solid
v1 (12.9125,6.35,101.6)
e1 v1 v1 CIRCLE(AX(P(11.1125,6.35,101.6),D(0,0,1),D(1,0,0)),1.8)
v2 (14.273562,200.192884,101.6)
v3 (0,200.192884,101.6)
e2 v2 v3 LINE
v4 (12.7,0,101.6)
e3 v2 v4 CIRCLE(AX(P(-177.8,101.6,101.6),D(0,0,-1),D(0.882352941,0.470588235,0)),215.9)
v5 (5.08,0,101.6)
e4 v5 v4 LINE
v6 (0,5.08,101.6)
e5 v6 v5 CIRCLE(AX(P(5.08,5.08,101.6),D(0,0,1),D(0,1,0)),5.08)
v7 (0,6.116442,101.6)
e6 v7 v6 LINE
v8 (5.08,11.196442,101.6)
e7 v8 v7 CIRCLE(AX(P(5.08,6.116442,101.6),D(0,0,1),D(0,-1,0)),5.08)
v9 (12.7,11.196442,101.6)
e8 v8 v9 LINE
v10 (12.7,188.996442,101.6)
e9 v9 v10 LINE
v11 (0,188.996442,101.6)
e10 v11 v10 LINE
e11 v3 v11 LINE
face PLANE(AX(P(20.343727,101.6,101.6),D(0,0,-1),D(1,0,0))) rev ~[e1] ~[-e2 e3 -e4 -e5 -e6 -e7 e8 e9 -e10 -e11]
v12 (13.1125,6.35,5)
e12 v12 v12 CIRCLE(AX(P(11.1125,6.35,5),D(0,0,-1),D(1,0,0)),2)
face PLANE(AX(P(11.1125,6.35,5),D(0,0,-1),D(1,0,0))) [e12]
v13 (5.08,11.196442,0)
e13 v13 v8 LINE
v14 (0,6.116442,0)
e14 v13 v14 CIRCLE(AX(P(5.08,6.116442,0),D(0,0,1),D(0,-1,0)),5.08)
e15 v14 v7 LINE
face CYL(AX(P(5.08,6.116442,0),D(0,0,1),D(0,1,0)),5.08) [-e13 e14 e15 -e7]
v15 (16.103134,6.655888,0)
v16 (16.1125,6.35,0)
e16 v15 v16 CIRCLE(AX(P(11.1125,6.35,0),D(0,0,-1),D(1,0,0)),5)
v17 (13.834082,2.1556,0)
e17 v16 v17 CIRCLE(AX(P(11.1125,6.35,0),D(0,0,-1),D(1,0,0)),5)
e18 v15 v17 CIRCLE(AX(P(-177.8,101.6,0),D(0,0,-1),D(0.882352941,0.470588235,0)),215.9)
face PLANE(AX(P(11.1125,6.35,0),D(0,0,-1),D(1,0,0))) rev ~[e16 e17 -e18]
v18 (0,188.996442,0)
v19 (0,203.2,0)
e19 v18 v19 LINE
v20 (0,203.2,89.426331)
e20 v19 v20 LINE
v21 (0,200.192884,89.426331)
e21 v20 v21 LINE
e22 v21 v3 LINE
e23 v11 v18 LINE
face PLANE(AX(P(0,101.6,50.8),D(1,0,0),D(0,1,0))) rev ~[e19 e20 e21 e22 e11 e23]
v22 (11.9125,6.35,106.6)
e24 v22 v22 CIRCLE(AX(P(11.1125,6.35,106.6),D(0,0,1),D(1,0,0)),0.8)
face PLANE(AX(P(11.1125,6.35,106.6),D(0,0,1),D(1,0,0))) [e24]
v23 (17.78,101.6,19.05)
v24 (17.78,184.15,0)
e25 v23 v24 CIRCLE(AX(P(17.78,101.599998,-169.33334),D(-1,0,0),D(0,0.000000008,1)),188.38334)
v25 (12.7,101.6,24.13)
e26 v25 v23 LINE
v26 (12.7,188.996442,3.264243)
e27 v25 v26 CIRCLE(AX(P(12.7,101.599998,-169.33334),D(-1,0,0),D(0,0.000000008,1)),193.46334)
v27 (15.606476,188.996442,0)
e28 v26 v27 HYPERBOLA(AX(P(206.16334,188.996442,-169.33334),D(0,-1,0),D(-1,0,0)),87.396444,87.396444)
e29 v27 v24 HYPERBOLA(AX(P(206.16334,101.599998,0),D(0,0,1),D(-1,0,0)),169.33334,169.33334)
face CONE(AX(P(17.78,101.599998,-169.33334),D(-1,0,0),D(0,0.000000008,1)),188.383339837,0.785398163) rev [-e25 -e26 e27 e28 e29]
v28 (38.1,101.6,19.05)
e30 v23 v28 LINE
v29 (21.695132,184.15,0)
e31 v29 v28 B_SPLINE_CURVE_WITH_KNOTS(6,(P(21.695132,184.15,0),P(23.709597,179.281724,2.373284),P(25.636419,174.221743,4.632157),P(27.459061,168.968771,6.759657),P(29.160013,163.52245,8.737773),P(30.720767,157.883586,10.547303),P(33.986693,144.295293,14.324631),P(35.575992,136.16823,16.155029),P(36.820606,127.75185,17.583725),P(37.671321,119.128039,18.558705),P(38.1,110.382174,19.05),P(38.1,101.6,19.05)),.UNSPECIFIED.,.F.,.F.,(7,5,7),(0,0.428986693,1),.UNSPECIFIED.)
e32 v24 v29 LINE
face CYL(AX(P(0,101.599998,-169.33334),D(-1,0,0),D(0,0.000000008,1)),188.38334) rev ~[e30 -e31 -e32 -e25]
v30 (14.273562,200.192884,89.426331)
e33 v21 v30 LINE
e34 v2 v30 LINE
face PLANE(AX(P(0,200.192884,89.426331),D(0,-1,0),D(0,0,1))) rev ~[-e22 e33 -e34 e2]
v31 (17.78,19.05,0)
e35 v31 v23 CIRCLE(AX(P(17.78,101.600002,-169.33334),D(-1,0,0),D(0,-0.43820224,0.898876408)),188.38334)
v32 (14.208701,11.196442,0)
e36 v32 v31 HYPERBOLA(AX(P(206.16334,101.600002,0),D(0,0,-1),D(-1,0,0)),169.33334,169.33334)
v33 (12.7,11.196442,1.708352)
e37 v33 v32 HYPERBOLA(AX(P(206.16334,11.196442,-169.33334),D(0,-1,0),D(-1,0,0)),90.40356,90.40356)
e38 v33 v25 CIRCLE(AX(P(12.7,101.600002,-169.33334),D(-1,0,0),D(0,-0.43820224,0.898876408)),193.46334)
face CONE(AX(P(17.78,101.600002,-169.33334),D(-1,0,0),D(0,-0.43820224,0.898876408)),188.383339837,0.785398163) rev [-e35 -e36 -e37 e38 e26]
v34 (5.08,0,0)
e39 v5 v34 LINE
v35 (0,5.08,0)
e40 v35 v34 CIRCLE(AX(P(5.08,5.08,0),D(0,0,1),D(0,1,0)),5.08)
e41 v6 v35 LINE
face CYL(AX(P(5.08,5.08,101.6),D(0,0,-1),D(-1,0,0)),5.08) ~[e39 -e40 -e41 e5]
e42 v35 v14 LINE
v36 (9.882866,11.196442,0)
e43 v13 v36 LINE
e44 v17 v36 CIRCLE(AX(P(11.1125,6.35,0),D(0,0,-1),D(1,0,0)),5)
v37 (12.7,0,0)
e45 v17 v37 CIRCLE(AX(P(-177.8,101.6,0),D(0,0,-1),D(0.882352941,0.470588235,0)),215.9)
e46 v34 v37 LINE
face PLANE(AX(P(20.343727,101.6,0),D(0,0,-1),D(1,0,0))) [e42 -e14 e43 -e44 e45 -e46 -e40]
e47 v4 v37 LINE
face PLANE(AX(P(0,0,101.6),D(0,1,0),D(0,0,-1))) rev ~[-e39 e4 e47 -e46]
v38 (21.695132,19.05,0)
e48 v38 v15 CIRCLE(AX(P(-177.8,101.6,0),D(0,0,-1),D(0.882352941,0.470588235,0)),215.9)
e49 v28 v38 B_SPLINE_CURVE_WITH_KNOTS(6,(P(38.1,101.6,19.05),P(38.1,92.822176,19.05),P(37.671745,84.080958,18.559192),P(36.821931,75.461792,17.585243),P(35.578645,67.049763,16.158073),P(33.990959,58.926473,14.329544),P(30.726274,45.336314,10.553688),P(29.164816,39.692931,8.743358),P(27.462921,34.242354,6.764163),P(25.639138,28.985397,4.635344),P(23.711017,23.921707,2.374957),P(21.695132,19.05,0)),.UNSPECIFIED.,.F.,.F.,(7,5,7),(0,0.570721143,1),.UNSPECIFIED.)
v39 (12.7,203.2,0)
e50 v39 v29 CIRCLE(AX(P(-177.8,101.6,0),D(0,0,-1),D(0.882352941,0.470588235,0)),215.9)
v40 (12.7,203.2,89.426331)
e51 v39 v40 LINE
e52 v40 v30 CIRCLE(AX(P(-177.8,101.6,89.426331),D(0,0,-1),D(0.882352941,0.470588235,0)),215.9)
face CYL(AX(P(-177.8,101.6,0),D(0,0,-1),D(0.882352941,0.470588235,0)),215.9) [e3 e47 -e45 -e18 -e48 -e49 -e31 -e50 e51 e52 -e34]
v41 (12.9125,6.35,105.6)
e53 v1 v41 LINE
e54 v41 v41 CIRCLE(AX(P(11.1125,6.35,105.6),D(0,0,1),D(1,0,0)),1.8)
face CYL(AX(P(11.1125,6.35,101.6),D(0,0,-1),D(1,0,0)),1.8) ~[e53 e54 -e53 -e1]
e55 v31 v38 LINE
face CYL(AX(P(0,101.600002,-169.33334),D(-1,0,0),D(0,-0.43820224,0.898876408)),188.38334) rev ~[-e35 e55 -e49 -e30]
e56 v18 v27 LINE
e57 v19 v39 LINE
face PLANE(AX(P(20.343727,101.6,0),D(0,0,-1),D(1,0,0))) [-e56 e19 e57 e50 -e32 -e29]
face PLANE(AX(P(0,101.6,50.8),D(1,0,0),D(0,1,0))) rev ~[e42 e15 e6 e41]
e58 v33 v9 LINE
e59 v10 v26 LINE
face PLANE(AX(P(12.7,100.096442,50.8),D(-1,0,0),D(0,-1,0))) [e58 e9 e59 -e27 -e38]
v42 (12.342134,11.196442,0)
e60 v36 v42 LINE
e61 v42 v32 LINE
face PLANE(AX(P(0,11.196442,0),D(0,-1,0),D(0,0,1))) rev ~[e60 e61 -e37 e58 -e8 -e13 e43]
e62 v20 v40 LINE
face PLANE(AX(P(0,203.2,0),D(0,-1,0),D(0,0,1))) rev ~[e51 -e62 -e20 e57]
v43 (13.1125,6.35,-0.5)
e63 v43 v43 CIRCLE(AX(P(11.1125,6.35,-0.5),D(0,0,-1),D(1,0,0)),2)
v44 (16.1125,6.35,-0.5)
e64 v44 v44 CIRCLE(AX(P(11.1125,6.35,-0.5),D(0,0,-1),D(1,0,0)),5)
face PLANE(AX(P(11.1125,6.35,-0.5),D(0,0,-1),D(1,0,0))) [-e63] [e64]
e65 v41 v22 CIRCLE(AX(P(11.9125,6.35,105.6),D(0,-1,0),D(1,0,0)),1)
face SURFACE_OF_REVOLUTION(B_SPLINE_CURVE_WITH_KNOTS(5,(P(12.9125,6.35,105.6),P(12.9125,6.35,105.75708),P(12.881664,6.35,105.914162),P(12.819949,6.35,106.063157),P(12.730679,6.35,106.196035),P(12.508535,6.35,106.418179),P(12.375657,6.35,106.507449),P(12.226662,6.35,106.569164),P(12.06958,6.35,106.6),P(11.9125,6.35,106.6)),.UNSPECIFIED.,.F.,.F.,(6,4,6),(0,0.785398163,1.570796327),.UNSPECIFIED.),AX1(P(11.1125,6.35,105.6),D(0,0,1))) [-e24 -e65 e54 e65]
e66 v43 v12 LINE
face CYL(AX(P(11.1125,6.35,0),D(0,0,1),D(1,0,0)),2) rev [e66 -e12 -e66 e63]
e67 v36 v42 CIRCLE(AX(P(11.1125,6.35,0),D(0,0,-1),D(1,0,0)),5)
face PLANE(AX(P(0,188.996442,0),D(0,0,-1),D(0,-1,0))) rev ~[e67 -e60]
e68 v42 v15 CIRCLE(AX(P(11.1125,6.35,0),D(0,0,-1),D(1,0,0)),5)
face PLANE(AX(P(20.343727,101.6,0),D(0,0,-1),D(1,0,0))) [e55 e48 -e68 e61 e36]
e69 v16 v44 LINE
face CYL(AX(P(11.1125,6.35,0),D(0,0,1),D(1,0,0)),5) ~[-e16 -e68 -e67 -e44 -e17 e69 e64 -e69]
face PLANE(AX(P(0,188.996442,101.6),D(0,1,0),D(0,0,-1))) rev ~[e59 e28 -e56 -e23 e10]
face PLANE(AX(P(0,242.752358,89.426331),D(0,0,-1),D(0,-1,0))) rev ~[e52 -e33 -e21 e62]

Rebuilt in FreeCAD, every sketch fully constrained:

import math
import FreeCAD as App
import Part
import Sketcher
Q = App.Units.Quantity


def edges_at(feature, points):
    """Names of the edges that pass closest to the given points."""
    edges = feature.Shape.Edges
    near = lambda p: min(range(len(edges)), key=lambda i: edges[i].distToShape(Part.Vertex(*p))[0])
    return sorted({f"Edge{near(p) + 1}" for p in points})

doc = App.newDocument("Part")
params = doc.addObject("Spreadsheet::Sheet", "Params")
for row, (alias, value) in enumerate([
    ("sketch1_width", "8 in"),
    ("sketch1_height", "4 in"),
    ("pad1_length", "0.5 in"),
    ("sketch2_radius", "8.5 in"),
    ("sketch2_height", "8 in"),
    ("pad2_length", "4 in"),
    ("sketch3_width", "6.5 in"),
    ("pocket3_length", "5 mm"),
    ("pad3_length", "0.5 mm"),
    ("pad4_length", "5 mm"),
    ("fillet_radius", "1 mm"),
    ("sketch8_width", "7 in"),
    ("sketch8_height", "4 in"),
    ("pocket4_length", "0.5 in"),
    ("fillet2_radius", "0.2 in"),
    ("chamfer_size", "0.2 in"),
], start=1):
    params.set(f"A{row}", alias)
    params.set(f"B{row}", "=" + value)
    params.setAlias(f"B{row}", alias)

body = doc.addObject("PartDesign::Body", "Body")

# Sketch on YZ plane
sketch1 = doc.addObject("Sketcher::SketchObject", "Sketch")
body.addObject(sketch1)
sketch1.AttachmentSupport = (doc.YZ_Plane, [""])
sketch1.MapMode = "FlatFace"
sketch1.addGeometry([
    Part.LineSegment(App.Vector(0, 101.6, 0), App.Vector(0, 0, 0)),
    Part.LineSegment(App.Vector(0, 0, 0), App.Vector(203.2, 0, 0)),
    Part.LineSegment(App.Vector(203.2, 0, 0), App.Vector(203.2, 101.6, 0)),
    Part.LineSegment(App.Vector(203.2, 101.6, 0), App.Vector(0, 101.6, 0)),
], False)
sketch1.addConstraint([
    Sketcher.Constraint("Coincident", 0, 2, 1, 1),
    Sketcher.Constraint("Coincident", 1, 2, 2, 1),
    Sketcher.Constraint("Coincident", 2, 2, 3, 1),
    Sketcher.Constraint("Coincident", 3, 2, 0, 1),
    Sketcher.Constraint("Vertical", 0),
    Sketcher.Constraint("Horizontal", 1),
    Sketcher.Constraint("Vertical", 2),
    Sketcher.Constraint("Horizontal", 3),
    Sketcher.Constraint("Coincident", 0, 2, -1, 1),
    Sketcher.Constraint("DistanceX", 1, 1, 1, 2, Q("8 in")),
    Sketcher.Constraint("DistanceY", 0, 2, 0, 1, Q("4 in")),
])
sketch1.setExpression("Constraints[9]", "Params.sketch1_width")
sketch1.setExpression("Constraints[10]", "Params.sketch1_height")
pad1 = doc.addObject("PartDesign::Pad", "Pad")
body.addObject(pad1)
pad1.Profile = sketch1
pad1.setExpression("Length", "Params.pad1_length")

# Sketch on XY plane
sketch2 = doc.addObject("Sketcher::SketchObject", "Sketch001")
body.addObject(sketch2)
sketch2.AttachmentSupport = (doc.XY_Plane, [""])
sketch2.MapMode = "FlatFace"
sketch2.addGeometry([
    Part.LineSegment(App.Vector(12.7, 0, 0), App.Vector(12.7, 203.2, 0)),
    Part.ArcOfCircle(Part.Circle(App.Vector(-177.8, 101.6, 0), App.Vector(0, 0, 1), 215.9), math.radians(-28.072487), math.radians(28.072487)),
], False)
sketch2.addConstraint([
    Sketcher.Constraint("Coincident", 0, 1, 1, 1),
    Sketcher.Constraint("Coincident", 1, 2, 0, 2),
    Sketcher.Constraint("Vertical", 0),
    Sketcher.Constraint("PointOnObject", 0, 1, -1),
    Sketcher.Constraint("Radius", 1, Q("8.5 in")),
    Sketcher.Constraint("DistanceY", 0, 1, 0, 2, Q("8 in")),
    Sketcher.Constraint("DistanceX", 1, 3, -1, 1, Q("7 in")),
])
sketch2.setExpression("Constraints[4]", "Params.sketch2_radius")
sketch2.setExpression("Constraints[5]", "Params.sketch2_height")
pad2 = doc.addObject("PartDesign::Pad", "Pad001")
body.addObject(pad2)
pad2.Profile = sketch2
pad2.setExpression("Length", "Params.pad2_length")

# Sketch on YZ plane
sketch3 = doc.addObject("Sketcher::SketchObject", "Sketch002")
body.addObject(sketch3)
sketch3.AttachmentSupport = (doc.YZ_Plane, [""])
sketch3.MapMode = "FlatFace"
sketch3.addGeometry([
    Part.ArcOfCircle(Part.Circle(App.Vector(101.600002, -169.33334, 0), App.Vector(0, 0, 1), 188.38334), math.radians(90), math.radians(115.989233)),
    Part.ArcOfCircle(Part.Circle(App.Vector(101.599998, -169.33334, 0), App.Vector(0, 0, 1), 188.38334), math.radians(64.010767), math.radians(90)),
    Part.LineSegment(App.Vector(184.15, 0, 0), App.Vector(19.05, 0, 0)),
], False)
sketch3.addConstraint([
    Sketcher.Constraint("Tangent", 0, 1, 1, 2),
    Sketcher.Constraint("Coincident", 1, 1, 2, 1),
    Sketcher.Constraint("Coincident", 2, 2, 0, 2),
    Sketcher.Constraint("Horizontal", 2),
    Sketcher.Constraint("Equal", 0, 1),
    Sketcher.Constraint("PointOnObject", 1, 1, -1),
    Sketcher.Constraint("Vertical", 1, 3, 0, 1),
    Sketcher.Constraint("DistanceX", 2, 2, 2, 1, Q("6.5 in")),
    Sketcher.Constraint("DistanceX", -1, 1, 0, 3, Q("4.0000001 in")),
    Sketcher.Constraint("DistanceY", -1, 1, 0, 1, Q("0.75 in")),
])
sketch3.setExpression("Constraints[7]", "Params.sketch3_width")
pocket1 = doc.addObject("PartDesign::Pocket", "Pocket")
body.addObject(pocket1)
pocket1.Profile = sketch3
pocket1.Type = "ThroughAll"
pocket1.Reversed = True

# Sketch on YZ plane
sketch4 = doc.addObject("Sketcher::SketchObject", "Sketch003")
body.addObject(sketch4)
sketch4.AttachmentSupport = (doc.YZ_Plane, [""])
sketch4.MapMode = "FlatFace"
sketch4.addGeometry([
    Part.LineSegment(App.Vector(242.752358, 138.923599, 0), App.Vector(242.752358, 89.426331, 0)),
    Part.LineSegment(App.Vector(242.752358, 89.426331, 0), App.Vector(200.192884, 89.426331, 0)),
    Part.LineSegment(App.Vector(200.192884, 89.426331, 0), App.Vector(200.192884, 138.923599, 0)),
    Part.LineSegment(App.Vector(200.192884, 138.923599, 0), App.Vector(242.752358, 138.923599, 0)),
], False)
sketch4.addConstraint([
    Sketcher.Constraint("Coincident", 0, 2, 1, 1),
    Sketcher.Constraint("Coincident", 1, 2, 2, 1),
    Sketcher.Constraint("Coincident", 2, 2, 3, 1),
    Sketcher.Constraint("Coincident", 3, 2, 0, 1),
    Sketcher.Constraint("Vertical", 0),
    Sketcher.Constraint("Horizontal", 1),
    Sketcher.Constraint("Vertical", 2),
    Sketcher.Constraint("Horizontal", 3),
    Sketcher.Constraint("DistanceY", 0, 2, 0, 1, Q("49.497269 mm")),
    Sketcher.Constraint("DistanceY", -1, 1, 2, 2, Q("138.923599 mm")),
    Sketcher.Constraint("DistanceX", 1, 2, 1, 1, Q("42.559474 mm")),
    Sketcher.Constraint("DistanceX", -1, 1, 0, 2, Q("242.752358 mm")),
])
pocket2 = doc.addObject("PartDesign::Pocket", "Pocket001")
body.addObject(pocket2)
pocket2.Profile = sketch4
pocket2.Type = "ThroughAll"
pocket2.Reversed = True

# Sketch on XY plane
sketch5 = doc.addObject("Sketcher::SketchObject", "Sketch004")
body.addObject(sketch5)
sketch5.AttachmentSupport = (doc.XY_Plane, [""])
sketch5.MapMode = "FlatFace"
sketch5.addGeometry(Part.Circle(App.Vector(11.1125, 6.35, 0), App.Vector(0, 0, 1), 2), False)
sketch5.addConstraint([
    Sketcher.Constraint("Diameter", 0, Q("4 mm")),
    Sketcher.Constraint("DistanceY", -1, 1, 0, 3, Q("0.25 in")),
    Sketcher.Constraint("DistanceX", -1, 1, 0, 3, Q("0.4375 in")),
])
pocket3 = doc.addObject("PartDesign::Pocket", "Pocket002")
body.addObject(pocket3)
pocket3.Profile = sketch5
pocket3.setExpression("Length", "Params.pocket3_length")
pocket3.Reversed = True

# Sketch on XY plane
sketch6 = doc.addObject("Sketcher::SketchObject", "Sketch005")
body.addObject(sketch6)
sketch6.AttachmentSupport = (doc.XY_Plane, [""])
sketch6.MapMode = "FlatFace"
sketch6.addGeometry([
    Part.Circle(App.Vector(11.1125, 6.35, 0), App.Vector(0, 0, 1), 5),
    Part.Circle(App.Vector(11.1125, 6.35, 0), App.Vector(0, 0, 1), 2),
], False)
sketch6.addConstraint([
    Sketcher.Constraint("Coincident", 1, 3, 0, 3),
    Sketcher.Constraint("Diameter", 0, Q("10 mm")),
    Sketcher.Constraint("Diameter", 1, Q("4 mm")),
    Sketcher.Constraint("DistanceY", -1, 1, 0, 3, Q("0.25 in")),
    Sketcher.Constraint("DistanceX", -1, 1, 0, 3, Q("0.4375 in")),
])
pad3 = doc.addObject("PartDesign::Pad", "Pad002")
body.addObject(pad3)
pad3.Profile = sketch6
pad3.setExpression("Length", "Params.pad3_length")
pad3.Reversed = True

# Sketch on XY plane
sketch7 = doc.addObject("Sketcher::SketchObject", "Sketch006")
body.addObject(sketch7)
sketch7.AttachmentSupport = (doc.XY_Plane, [""])
sketch7.MapMode = "FlatFace"
sketch7.AttachmentOffset = App.Placement(App.Vector(0, 0, 4 * 25.4), App.Rotation())
sketch7.addGeometry(Part.Circle(App.Vector(11.1125, 6.35, 0), App.Vector(0, 0, 1), 1.8), False)
sketch7.addConstraint([
    Sketcher.Constraint("Diameter", 0, Q("3.6 mm")),
    Sketcher.Constraint("DistanceY", -1, 1, 0, 3, Q("0.25 in")),
    Sketcher.Constraint("DistanceX", -1, 1, 0, 3, Q("0.4375 in")),
])
pad4 = doc.addObject("PartDesign::Pad", "Pad003")
body.addObject(pad4)
pad4.Profile = sketch7
pad4.setExpression("Length", "Params.pad4_length")
doc.recompute()

fillet = doc.addObject("PartDesign::Fillet", "Fillet")
body.addObject(fillet)
fillet.Base = (pad4, edges_at(pad4, [(9.312, 6.35, 106.6)]))
fillet.setExpression("Radius", "Params.fillet_radius")

# Sketch on YZ plane
sketch8 = doc.addObject("Sketcher::SketchObject", "Sketch007")
body.addObject(sketch8)
sketch8.AttachmentSupport = (doc.YZ_Plane, [""])
sketch8.MapMode = "FlatFace"
sketch8.addGeometry([
    Part.LineSegment(App.Vector(188.996442, 101.6, 0), App.Vector(188.996442, 0, 0)),
    Part.LineSegment(App.Vector(188.996442, 0, 0), App.Vector(11.196442, 0, 0)),
    Part.LineSegment(App.Vector(11.196442, 0, 0), App.Vector(11.196442, 101.6, 0)),
    Part.LineSegment(App.Vector(11.196442, 101.6, 0), App.Vector(188.996442, 101.6, 0)),
], False)
sketch8.addConstraint([
    Sketcher.Constraint("Coincident", 0, 2, 1, 1),
    Sketcher.Constraint("Coincident", 1, 2, 2, 1),
    Sketcher.Constraint("Coincident", 2, 2, 3, 1),
    Sketcher.Constraint("Coincident", 3, 2, 0, 1),
    Sketcher.Constraint("Vertical", 0),
    Sketcher.Constraint("Horizontal", 1),
    Sketcher.Constraint("Vertical", 2),
    Sketcher.Constraint("Horizontal", 3),
    Sketcher.Constraint("PointOnObject", 0, 2, -1),
    Sketcher.Constraint("DistanceX", 1, 2, 1, 1, Q("7 in")),
    Sketcher.Constraint("DistanceY", 0, 2, 0, 1, Q("4 in")),
    Sketcher.Constraint("DistanceX", -1, 1, 0, 2, Q("188.996442 mm")),
])
sketch8.setExpression("Constraints[9]", "Params.sketch8_width")
sketch8.setExpression("Constraints[10]", "Params.sketch8_height")
pocket4 = doc.addObject("PartDesign::Pocket", "Pocket003")
body.addObject(pocket4)
pocket4.Profile = sketch8
pocket4.setExpression("Length", "Params.pocket4_length")
pocket4.Reversed = True
doc.recompute()

fillet2 = doc.addObject("PartDesign::Fillet", "Fillet001")
body.addObject(fillet2)
fillet2.Base = (pocket4, edges_at(pocket4, [(0, 0, 50.8), (0, 11.196, 50.8)]))
fillet2.setExpression("Radius", "Params.fillet2_radius")
doc.recompute()

chamfer = doc.addObject("PartDesign::Chamfer", "Chamfer")
body.addObject(chamfer)
chamfer.Base = (fillet2, edges_at(fillet2, [(12.7, 59.24, 14.226)]))
chamfer.setExpression("Size", "Params.chamfer_size")

doc.recompute()
